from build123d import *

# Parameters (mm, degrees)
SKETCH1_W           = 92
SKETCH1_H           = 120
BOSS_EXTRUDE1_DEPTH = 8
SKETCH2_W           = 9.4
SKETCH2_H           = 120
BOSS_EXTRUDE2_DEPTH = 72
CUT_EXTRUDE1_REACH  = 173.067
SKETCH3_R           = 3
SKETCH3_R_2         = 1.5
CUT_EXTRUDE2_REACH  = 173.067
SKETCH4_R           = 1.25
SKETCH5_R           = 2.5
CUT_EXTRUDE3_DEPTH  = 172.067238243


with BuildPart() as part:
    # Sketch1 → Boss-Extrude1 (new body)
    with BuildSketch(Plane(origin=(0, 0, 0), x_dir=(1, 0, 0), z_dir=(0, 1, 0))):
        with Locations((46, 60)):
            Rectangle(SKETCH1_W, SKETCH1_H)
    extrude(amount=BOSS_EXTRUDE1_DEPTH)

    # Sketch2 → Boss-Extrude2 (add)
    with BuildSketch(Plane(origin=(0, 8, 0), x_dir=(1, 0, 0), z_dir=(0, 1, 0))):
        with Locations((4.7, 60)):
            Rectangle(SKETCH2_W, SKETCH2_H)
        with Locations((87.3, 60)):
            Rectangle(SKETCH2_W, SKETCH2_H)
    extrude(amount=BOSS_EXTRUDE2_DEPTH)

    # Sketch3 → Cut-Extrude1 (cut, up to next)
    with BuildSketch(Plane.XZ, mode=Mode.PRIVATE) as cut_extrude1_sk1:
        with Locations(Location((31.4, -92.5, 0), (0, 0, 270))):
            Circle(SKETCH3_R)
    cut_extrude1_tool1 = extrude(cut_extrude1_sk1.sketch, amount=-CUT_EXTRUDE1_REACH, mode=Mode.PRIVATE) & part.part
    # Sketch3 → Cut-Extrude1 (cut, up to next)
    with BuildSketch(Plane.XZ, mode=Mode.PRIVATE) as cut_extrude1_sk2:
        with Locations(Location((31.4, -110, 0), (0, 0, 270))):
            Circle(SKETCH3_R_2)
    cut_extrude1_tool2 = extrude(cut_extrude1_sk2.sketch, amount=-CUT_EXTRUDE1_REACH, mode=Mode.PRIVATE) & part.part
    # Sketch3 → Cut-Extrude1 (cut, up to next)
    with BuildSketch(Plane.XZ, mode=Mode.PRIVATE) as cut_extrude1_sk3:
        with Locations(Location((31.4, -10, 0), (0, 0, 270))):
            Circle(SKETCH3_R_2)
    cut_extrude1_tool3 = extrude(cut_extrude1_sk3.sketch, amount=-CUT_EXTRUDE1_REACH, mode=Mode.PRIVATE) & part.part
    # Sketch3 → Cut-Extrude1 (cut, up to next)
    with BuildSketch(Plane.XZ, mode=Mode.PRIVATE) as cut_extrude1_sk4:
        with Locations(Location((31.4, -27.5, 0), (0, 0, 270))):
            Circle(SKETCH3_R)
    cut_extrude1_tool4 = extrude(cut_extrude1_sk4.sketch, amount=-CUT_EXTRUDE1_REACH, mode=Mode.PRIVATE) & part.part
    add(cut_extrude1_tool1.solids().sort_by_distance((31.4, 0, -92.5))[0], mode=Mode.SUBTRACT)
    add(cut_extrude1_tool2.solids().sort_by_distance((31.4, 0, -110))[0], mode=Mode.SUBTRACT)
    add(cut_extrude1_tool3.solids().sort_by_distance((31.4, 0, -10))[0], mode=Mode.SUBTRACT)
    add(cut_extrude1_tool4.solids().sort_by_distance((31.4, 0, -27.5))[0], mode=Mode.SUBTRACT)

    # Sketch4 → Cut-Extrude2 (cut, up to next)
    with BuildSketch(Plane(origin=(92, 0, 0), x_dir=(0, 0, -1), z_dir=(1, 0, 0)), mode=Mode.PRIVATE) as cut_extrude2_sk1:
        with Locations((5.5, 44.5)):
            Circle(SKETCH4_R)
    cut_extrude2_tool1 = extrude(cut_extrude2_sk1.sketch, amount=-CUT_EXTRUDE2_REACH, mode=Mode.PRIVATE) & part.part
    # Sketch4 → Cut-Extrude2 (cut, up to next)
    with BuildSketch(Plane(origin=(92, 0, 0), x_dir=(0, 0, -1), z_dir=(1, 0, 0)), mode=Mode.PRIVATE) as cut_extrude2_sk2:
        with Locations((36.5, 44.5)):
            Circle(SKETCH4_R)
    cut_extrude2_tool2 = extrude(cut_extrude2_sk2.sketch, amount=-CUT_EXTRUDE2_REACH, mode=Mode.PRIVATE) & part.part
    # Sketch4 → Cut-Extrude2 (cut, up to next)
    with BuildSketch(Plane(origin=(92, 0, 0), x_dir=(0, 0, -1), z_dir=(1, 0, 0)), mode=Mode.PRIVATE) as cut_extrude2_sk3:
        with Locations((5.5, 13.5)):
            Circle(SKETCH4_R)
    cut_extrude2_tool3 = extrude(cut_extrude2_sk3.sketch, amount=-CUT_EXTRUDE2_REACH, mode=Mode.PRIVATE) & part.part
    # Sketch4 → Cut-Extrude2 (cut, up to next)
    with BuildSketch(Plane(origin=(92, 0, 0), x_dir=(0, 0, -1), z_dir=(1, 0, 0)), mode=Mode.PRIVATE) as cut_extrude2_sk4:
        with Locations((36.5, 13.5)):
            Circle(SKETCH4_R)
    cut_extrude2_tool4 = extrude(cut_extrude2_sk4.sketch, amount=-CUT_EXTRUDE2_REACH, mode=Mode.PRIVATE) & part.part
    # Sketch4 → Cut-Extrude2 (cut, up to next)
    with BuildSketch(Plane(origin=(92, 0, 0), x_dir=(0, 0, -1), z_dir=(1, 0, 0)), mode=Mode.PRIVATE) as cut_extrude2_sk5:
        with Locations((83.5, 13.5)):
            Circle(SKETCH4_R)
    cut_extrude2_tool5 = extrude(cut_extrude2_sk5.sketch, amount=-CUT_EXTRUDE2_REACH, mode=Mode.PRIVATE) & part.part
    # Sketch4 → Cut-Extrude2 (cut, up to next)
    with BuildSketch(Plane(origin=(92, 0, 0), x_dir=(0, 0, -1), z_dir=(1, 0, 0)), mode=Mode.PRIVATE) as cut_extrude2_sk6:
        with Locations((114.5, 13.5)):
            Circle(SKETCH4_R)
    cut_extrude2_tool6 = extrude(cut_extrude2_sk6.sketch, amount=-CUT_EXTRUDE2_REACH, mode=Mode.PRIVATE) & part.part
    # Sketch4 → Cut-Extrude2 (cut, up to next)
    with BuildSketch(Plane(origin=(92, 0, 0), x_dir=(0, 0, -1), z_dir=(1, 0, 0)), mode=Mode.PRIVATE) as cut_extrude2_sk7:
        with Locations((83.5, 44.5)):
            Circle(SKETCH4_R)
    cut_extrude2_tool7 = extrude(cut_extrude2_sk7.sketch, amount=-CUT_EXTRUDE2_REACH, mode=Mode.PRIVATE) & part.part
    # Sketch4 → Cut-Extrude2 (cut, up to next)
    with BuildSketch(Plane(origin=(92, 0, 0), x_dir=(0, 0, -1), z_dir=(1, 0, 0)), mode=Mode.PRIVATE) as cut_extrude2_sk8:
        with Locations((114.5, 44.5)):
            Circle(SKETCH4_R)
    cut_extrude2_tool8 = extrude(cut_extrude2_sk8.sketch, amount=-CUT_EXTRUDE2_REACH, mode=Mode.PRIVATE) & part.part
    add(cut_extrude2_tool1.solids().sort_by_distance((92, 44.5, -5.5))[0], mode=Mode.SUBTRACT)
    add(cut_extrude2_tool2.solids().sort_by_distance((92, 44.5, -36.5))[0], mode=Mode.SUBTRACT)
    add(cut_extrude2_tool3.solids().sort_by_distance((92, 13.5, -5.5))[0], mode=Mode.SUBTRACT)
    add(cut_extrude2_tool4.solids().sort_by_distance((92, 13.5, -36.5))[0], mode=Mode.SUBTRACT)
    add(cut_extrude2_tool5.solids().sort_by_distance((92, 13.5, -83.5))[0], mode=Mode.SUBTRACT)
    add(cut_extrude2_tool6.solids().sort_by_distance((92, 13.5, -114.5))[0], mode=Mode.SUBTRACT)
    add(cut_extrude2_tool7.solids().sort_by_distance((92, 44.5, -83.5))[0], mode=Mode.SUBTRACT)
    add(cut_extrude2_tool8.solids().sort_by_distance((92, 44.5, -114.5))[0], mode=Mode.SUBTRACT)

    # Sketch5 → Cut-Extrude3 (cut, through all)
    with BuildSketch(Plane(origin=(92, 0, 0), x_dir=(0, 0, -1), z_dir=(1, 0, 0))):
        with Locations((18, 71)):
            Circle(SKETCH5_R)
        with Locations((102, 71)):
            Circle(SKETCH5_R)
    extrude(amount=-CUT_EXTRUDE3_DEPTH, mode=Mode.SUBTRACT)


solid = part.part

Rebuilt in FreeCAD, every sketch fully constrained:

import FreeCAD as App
import Part
import Sketcher

doc = App.newDocument("Part")
body = doc.addObject("PartDesign::Body", "Body")

sketch1 = doc.addObject("Sketcher::SketchObject", "Sketch")
body.addObject(sketch1)
sketch1.AttachmentSupport = (doc.XZ_Plane, [""])
sketch1.MapMode = "FlatFace"
sketch1.addGeometry([
    Part.LineSegment(App.Vector(0, -120, 0), App.Vector(0, 0, 0)),
    Part.LineSegment(App.Vector(0, 0, 0), App.Vector(92, 0, 0)),
    Part.LineSegment(App.Vector(92, 0, 0), App.Vector(92, -120, 0)),
    Part.LineSegment(App.Vector(92, -120, 0), App.Vector(0, -120, 0)),
], False)
sketch1.addConstraint([
    Sketcher.Constraint("Coincident", 0, 2, 1, 1),
    Sketcher.Constraint("Coincident", 1, 2, 2, 1),
    Sketcher.Constraint("Coincident", 2, 2, 3, 1),
    Sketcher.Constraint("Coincident", 3, 2, 0, 1),
    Sketcher.Constraint("Vertical", 0),
    Sketcher.Constraint("Horizontal", 1),
    Sketcher.Constraint("Vertical", 2),
    Sketcher.Constraint("Horizontal", 3),
    Sketcher.Constraint("Coincident", 0, 2, -1, 1),
    Sketcher.Constraint("DistanceX", 1, 1, 1, 2, 92.0),
    Sketcher.Constraint("DistanceY", 0, 1, 0, 2, 120.0),
])
pad1 = doc.addObject("PartDesign::Pad", "Pad")
body.addObject(pad1)
pad1.Profile = sketch1
pad1.Length = 8
pad1.Reversed = True

sketch2 = doc.addObject("Sketcher::SketchObject", "Sketch001")
body.addObject(sketch2)
sketch2.AttachmentSupport = (doc.XZ_Plane, [""])
sketch2.MapMode = "FlatFace"
sketch2.AttachmentOffset = App.Placement(App.Vector(0, 0, -8), App.Rotation())
sketch2.addGeometry([
    Part.LineSegment(App.Vector(0, -120, 0), App.Vector(0, 0, 0)),
    Part.LineSegment(App.Vector(0, 0, 0), App.Vector(9.4, 0, 0)),
    Part.LineSegment(App.Vector(9.4, 0, 0), App.Vector(9.4, -120, 0)),
    Part.LineSegment(App.Vector(9.4, -120, 0), App.Vector(0, -120, 0)),
    Part.LineSegment(App.Vector(82.6, -120, 0), App.Vector(82.6, 0, 0)),
    Part.LineSegment(App.Vector(82.6, 0, 0), App.Vector(92, 0, 0)),
    Part.LineSegment(App.Vector(92, 0, 0), App.Vector(92, -120, 0)),
    Part.LineSegment(App.Vector(92, -120, 0), App.Vector(82.6, -120, 0)),
], False)
sketch2.addConstraint([
    Sketcher.Constraint("Coincident", 0, 2, 1, 1),
    Sketcher.Constraint("Coincident", 1, 2, 2, 1),
    Sketcher.Constraint("Coincident", 2, 2, 3, 1),
    Sketcher.Constraint("Coincident", 3, 2, 0, 1),
    Sketcher.Constraint("Coincident", 4, 2, 5, 1),
    Sketcher.Constraint("Coincident", 5, 2, 6, 1),
    Sketcher.Constraint("Coincident", 6, 2, 7, 1),
    Sketcher.Constraint("Coincident", 7, 2, 4, 1),
    Sketcher.Constraint("Vertical", 0),
    Sketcher.Constraint("Horizontal", 1),
    Sketcher.Constraint("Vertical", 2),
    Sketcher.Constraint("Horizontal", 3),
    Sketcher.Constraint("Vertical", 4),
    Sketcher.Constraint("Horizontal", 5),
    Sketcher.Constraint("Vertical", 6),
    Sketcher.Constraint("Horizontal", 7),
    Sketcher.Constraint("Coincident", 0, 2, -1, 1),
    Sketcher.Constraint("PointOnObject", 4, 2, -1),
    Sketcher.Constraint("Horizontal", 3, 2, 6, 2),
    Sketcher.Constraint("Equal", 3, 5),
    Sketcher.Constraint("DistanceY", 0, 1, 0, 2, 120.0),
    Sketcher.Constraint("DistanceX", 1, 1, 1, 2, 9.4),
    Sketcher.Constraint("DistanceX", -1, 1, 5, 2, 92.0),
])
pad2 = doc.addObject("PartDesign::Pad", "Pad001")
body.addObject(pad2)
pad2.Profile = sketch2
pad2.Length = 72
pad2.Reversed = True

sketch3 = doc.addObject("Sketcher::SketchObject", "Sketch002")
body.addObject(sketch3)
sketch3.AttachmentSupport = (doc.XZ_Plane, [""])
sketch3.MapMode = "FlatFace"
sketch3.addGeometry(Part.Circle(App.Vector(31.4, -92.5, 0), App.Vector(0, 0, 1), 3), False)
sketch3.addConstraint([
    Sketcher.Constraint("Diameter", 0, 6.0),
    Sketcher.Constraint("DistanceX", -1, 1, 0, 3, 31.4),
    Sketcher.Constraint("DistanceY", 0, 3, -1, 1, 92.5),
])
pocket1 = doc.addObject("PartDesign::Pocket", "Pocket")
body.addObject(pocket1)
pocket1.Profile = sketch3
pocket1.Type = "UpToFirst"

sketch4 = doc.addObject("Sketcher::SketchObject", "Sketch003")
body.addObject(sketch4)
sketch4.AttachmentSupport = (doc.XZ_Plane, [""])
sketch4.MapMode = "FlatFace"
sketch4.addGeometry(Part.Circle(App.Vector(31.4, -110, 0), App.Vector(0, 0, 1), 1.5), False)
sketch4.addConstraint([
    Sketcher.Constraint("Diameter", 0, 3.0),
    Sketcher.Constraint("DistanceY", 0, 3, -1, 1, 110.0),
    Sketcher.Constraint("DistanceX", -1, 1, 0, 3, 31.4),
])
pocket2 = doc.addObject("PartDesign::Pocket", "Pocket001")
body.addObject(pocket2)
pocket2.Profile = sketch4
pocket2.Type = "UpToFirst"

sketch5 = doc.addObject("Sketcher::SketchObject", "Sketch004")
body.addObject(sketch5)
sketch5.AttachmentSupport = (doc.XZ_Plane, [""])
sketch5.MapMode = "FlatFace"
sketch5.addGeometry(Part.Circle(App.Vector(31.4, -10, 0), App.Vector(0, 0, 1), 1.5), False)
sketch5.addConstraint([
    Sketcher.Constraint("Diameter", 0, 3.0),
    Sketcher.Constraint("DistanceY", 0, 3, -1, 1, 10.0),
    Sketcher.Constraint("DistanceX", -1, 1, 0, 3, 31.4),
])
pocket3 = doc.addObject("PartDesign::Pocket", "Pocket002")
body.addObject(pocket3)
pocket3.Profile = sketch5
pocket3.Type = "UpToFirst"

sketch6 = doc.addObject("Sketcher::SketchObject", "Sketch005")
body.addObject(sketch6)
sketch6.AttachmentSupport = (doc.XZ_Plane, [""])
sketch6.MapMode = "FlatFace"
sketch6.addGeometry(Part.Circle(App.Vector(31.4, -27.5, 0), App.Vector(0, 0, 1), 3), False)
sketch6.addConstraint([
    Sketcher.Constraint("Diameter", 0, 6.0),
    Sketcher.Constraint("DistanceX", -1, 1, 0, 3, 31.4),
    Sketcher.Constraint("DistanceY", 0, 3, -1, 1, 27.5),
])
pocket4 = doc.addObject("PartDesign::Pocket", "Pocket003")
body.addObject(pocket4)
pocket4.Profile = sketch6
pocket4.Type = "UpToFirst"

sketch7 = doc.addObject("Sketcher::SketchObject", "Sketch006")
body.addObject(sketch7)
sketch7.AttachmentSupport = (doc.YZ_Plane, [""])
sketch7.MapMode = "FlatFace"
sketch7.AttachmentOffset = App.Placement(App.Vector(0, 0, 92), App.Rotation())
sketch7.addGeometry(Part.Circle(App.Vector(44.5, -5.5, 0), App.Vector(0, 0, 1), 1.25), False)
sketch7.addConstraint([
    Sketcher.Constraint("Diameter", 0, 2.5),
    Sketcher.Constraint("DistanceX", -1, 1, 0, 3, 44.5),
    Sketcher.Constraint("DistanceY", 0, 3, -1, 1, 5.5),
])
pocket5 = doc.addObject("PartDesign::Pocket", "Pocket004")
body.addObject(pocket5)
pocket5.Profile = sketch7
pocket5.Type = "UpToFirst"

sketch8 = doc.addObject("Sketcher::SketchObject", "Sketch007")
body.addObject(sketch8)
sketch8.AttachmentSupport = (doc.YZ_Plane, [""])
sketch8.MapMode = "FlatFace"
sketch8.AttachmentOffset = App.Placement(App.Vector(0, 0, 92), App.Rotation())
sketch8.addGeometry(Part.Circle(App.Vector(44.5, -36.5, 0), App.Vector(0, 0, 1), 1.25), False)
sketch8.addConstraint([
    Sketcher.Constraint("Diameter", 0, 2.5),
    Sketcher.Constraint("DistanceX", -1, 1, 0, 3, 44.5),
    Sketcher.Constraint("DistanceY", 0, 3, -1, 1, 36.5),
])
pocket6 = doc.addObject("PartDesign::Pocket", "Pocket005")
body.addObject(pocket6)
pocket6.Profile = sketch8
pocket6.Type = "UpToFirst"

sketch9 = doc.addObject("Sketcher::SketchObject", "Sketch008")
body.addObject(sketch9)
sketch9.AttachmentSupport = (doc.YZ_Plane, [""])
sketch9.MapMode = "FlatFace"
sketch9.AttachmentOffset = App.Placement(App.Vector(0, 0, 92), App.Rotation())
sketch9.addGeometry(Part.Circle(App.Vector(13.5, -5.5, 0), App.Vector(0, 0, 1), 1.25), False)
sketch9.addConstraint([
    Sketcher.Constraint("Diameter", 0, 2.5),
    Sketcher.Constraint("DistanceX", -1, 1, 0, 3, 13.5),
    Sketcher.Constraint("DistanceY", 0, 3, -1, 1, 5.5),
])
pocket7 = doc.addObject("PartDesign::Pocket", "Pocket006")
body.addObject(pocket7)
pocket7.Profile = sketch9
pocket7.Type = "UpToFirst"

sketch10 = doc.addObject("Sketcher::SketchObject", "Sketch009")
body.addObject(sketch10)
sketch10.AttachmentSupport = (doc.YZ_Plane, [""])
sketch10.MapMode = "FlatFace"
sketch10.AttachmentOffset = App.Placement(App.Vector(0, 0, 92), App.Rotation())
sketch10.addGeometry(Part.Circle(App.Vector(13.5, -36.5, 0), App.Vector(0, 0, 1), 1.25), False)
sketch10.addConstraint([
    Sketcher.Constraint("Diameter", 0, 2.5),
    Sketcher.Constraint("DistanceX", -1, 1, 0, 3, 13.5),
    Sketcher.Constraint("DistanceY", 0, 3, -1, 1, 36.5),
])
pocket8 = doc.addObject("PartDesign::Pocket", "Pocket007")
body.addObject(pocket8)
pocket8.Profile = sketch10
pocket8.Type = "UpToFirst"

sketch11 = doc.addObject("Sketcher::SketchObject", "Sketch010")
body.addObject(sketch11)
sketch11.AttachmentSupport = (doc.YZ_Plane, [""])
sketch11.MapMode = "FlatFace"
sketch11.AttachmentOffset = App.Placement(App.Vector(0, 0, 92), App.Rotation())
sketch11.addGeometry(Part.Circle(App.Vector(13.5, -83.5, 0), App.Vector(0, 0, 1), 1.25), False)
sketch11.addConstraint([
    Sketcher.Constraint("Diameter", 0, 2.5),
    Sketcher.Constraint("DistanceX", -1, 1, 0, 3, 13.5),
    Sketcher.Constraint("DistanceY", 0, 3, -1, 1, 83.5),
])
pocket9 = doc.addObject("PartDesign::Pocket", "Pocket008")
body.addObject(pocket9)
pocket9.Profile = sketch11
pocket9.Type = "UpToFirst"

sketch12 = doc.addObject("Sketcher::SketchObject", "Sketch011")
body.addObject(sketch12)
sketch12.AttachmentSupport = (doc.YZ_Plane, [""])
sketch12.MapMode = "FlatFace"
sketch12.AttachmentOffset = App.Placement(App.Vector(0, 0, 92), App.Rotation())
sketch12.addGeometry(Part.Circle(App.Vector(13.5, -114.5, 0), App.Vector(0, 0, 1), 1.25), False)
sketch12.addConstraint([
    Sketcher.Constraint("Diameter", 0, 2.5),
    Sketcher.Constraint("DistanceX", -1, 1, 0, 3, 13.5),
    Sketcher.Constraint("DistanceY", 0, 3, -1, 1, 114.5),
])
pocket10 = doc.addObject("PartDesign::Pocket", "Pocket009")
body.addObject(pocket10)
pocket10.Profile = sketch12
pocket10.Type = "UpToFirst"

sketch13 = doc.addObject("Sketcher::SketchObject", "Sketch012")
body.addObject(sketch13)
sketch13.AttachmentSupport = (doc.YZ_Plane, [""])
sketch13.MapMode = "FlatFace"
sketch13.AttachmentOffset = App.Placement(App.Vector(0, 0, 92), App.Rotation())
sketch13.addGeometry(Part.Circle(App.Vector(44.5, -83.5, 0), App.Vector(0, 0, 1), 1.25), False)
sketch13.addConstraint([
    Sketcher.Constraint("Diameter", 0, 2.5),
    Sketcher.Constraint("DistanceX", -1, 1, 0, 3, 44.5),
    Sketcher.Constraint("DistanceY", 0, 3, -1, 1, 83.5),
])
pocket11 = doc.addObject("PartDesign::Pocket", "Pocket010")
body.addObject(pocket11)
pocket11.Profile = sketch13
pocket11.Type = "UpToFirst"

sketch14 = doc.addObject("Sketcher::SketchObject", "Sketch013")
body.addObject(sketch14)
sketch14.AttachmentSupport = (doc.YZ_Plane, [""])
sketch14.MapMode = "FlatFace"
sketch14.AttachmentOffset = App.Placement(App.Vector(0, 0, 92), App.Rotation())
sketch14.addGeometry(Part.Circle(App.Vector(44.5, -114.5, 0), App.Vector(0, 0, 1), 1.25), False)
sketch14.addConstraint([
    Sketcher.Constraint("Diameter", 0, 2.5),
    Sketcher.Constraint("DistanceX", -1, 1, 0, 3, 44.5),
    Sketcher.Constraint("DistanceY", 0, 3, -1, 1, 114.5),
])
pocket12 = doc.addObject("PartDesign::Pocket", "Pocket011")
body.addObject(pocket12)
pocket12.Profile = sketch14
pocket12.Type = "UpToFirst"

sketch15 = doc.addObject("Sketcher::SketchObject", "Sketch014")
body.addObject(sketch15)
sketch15.AttachmentSupport = (doc.YZ_Plane, [""])
sketch15.MapMode = "FlatFace"
sketch15.AttachmentOffset = App.Placement(App.Vector(0, 0, 92), App.Rotation())
sketch15.addGeometry([
    Part.Circle(App.Vector(71, -18, 0), App.Vector(0, 0, 1), 2.5),
    Part.Circle(App.Vector(71, -102, 0), App.Vector(0, 0, 1), 2.5),
], False)
sketch15.addConstraint([
    Sketcher.Constraint("Equal", 0, 1),
    Sketcher.Constraint("Vertical", 0, 3, 1, 3),
    Sketcher.Constraint("Diameter", 0, 5.0),
    Sketcher.Constraint("DistanceX", -1, 1, 0, 3, 71.0),
    Sketcher.Constraint("DistanceY", 0, 3, -1, 1, 18.0),
    Sketcher.Constraint("DistanceY", 1, 3, -1, 1, 102.0),
])
pocket13 = doc.addObject("PartDesign::Pocket", "Pocket012")
body.addObject(pocket13)
pocket13.Profile = sketch15
pocket13.Type = "ThroughAll"

doc.recompute()
